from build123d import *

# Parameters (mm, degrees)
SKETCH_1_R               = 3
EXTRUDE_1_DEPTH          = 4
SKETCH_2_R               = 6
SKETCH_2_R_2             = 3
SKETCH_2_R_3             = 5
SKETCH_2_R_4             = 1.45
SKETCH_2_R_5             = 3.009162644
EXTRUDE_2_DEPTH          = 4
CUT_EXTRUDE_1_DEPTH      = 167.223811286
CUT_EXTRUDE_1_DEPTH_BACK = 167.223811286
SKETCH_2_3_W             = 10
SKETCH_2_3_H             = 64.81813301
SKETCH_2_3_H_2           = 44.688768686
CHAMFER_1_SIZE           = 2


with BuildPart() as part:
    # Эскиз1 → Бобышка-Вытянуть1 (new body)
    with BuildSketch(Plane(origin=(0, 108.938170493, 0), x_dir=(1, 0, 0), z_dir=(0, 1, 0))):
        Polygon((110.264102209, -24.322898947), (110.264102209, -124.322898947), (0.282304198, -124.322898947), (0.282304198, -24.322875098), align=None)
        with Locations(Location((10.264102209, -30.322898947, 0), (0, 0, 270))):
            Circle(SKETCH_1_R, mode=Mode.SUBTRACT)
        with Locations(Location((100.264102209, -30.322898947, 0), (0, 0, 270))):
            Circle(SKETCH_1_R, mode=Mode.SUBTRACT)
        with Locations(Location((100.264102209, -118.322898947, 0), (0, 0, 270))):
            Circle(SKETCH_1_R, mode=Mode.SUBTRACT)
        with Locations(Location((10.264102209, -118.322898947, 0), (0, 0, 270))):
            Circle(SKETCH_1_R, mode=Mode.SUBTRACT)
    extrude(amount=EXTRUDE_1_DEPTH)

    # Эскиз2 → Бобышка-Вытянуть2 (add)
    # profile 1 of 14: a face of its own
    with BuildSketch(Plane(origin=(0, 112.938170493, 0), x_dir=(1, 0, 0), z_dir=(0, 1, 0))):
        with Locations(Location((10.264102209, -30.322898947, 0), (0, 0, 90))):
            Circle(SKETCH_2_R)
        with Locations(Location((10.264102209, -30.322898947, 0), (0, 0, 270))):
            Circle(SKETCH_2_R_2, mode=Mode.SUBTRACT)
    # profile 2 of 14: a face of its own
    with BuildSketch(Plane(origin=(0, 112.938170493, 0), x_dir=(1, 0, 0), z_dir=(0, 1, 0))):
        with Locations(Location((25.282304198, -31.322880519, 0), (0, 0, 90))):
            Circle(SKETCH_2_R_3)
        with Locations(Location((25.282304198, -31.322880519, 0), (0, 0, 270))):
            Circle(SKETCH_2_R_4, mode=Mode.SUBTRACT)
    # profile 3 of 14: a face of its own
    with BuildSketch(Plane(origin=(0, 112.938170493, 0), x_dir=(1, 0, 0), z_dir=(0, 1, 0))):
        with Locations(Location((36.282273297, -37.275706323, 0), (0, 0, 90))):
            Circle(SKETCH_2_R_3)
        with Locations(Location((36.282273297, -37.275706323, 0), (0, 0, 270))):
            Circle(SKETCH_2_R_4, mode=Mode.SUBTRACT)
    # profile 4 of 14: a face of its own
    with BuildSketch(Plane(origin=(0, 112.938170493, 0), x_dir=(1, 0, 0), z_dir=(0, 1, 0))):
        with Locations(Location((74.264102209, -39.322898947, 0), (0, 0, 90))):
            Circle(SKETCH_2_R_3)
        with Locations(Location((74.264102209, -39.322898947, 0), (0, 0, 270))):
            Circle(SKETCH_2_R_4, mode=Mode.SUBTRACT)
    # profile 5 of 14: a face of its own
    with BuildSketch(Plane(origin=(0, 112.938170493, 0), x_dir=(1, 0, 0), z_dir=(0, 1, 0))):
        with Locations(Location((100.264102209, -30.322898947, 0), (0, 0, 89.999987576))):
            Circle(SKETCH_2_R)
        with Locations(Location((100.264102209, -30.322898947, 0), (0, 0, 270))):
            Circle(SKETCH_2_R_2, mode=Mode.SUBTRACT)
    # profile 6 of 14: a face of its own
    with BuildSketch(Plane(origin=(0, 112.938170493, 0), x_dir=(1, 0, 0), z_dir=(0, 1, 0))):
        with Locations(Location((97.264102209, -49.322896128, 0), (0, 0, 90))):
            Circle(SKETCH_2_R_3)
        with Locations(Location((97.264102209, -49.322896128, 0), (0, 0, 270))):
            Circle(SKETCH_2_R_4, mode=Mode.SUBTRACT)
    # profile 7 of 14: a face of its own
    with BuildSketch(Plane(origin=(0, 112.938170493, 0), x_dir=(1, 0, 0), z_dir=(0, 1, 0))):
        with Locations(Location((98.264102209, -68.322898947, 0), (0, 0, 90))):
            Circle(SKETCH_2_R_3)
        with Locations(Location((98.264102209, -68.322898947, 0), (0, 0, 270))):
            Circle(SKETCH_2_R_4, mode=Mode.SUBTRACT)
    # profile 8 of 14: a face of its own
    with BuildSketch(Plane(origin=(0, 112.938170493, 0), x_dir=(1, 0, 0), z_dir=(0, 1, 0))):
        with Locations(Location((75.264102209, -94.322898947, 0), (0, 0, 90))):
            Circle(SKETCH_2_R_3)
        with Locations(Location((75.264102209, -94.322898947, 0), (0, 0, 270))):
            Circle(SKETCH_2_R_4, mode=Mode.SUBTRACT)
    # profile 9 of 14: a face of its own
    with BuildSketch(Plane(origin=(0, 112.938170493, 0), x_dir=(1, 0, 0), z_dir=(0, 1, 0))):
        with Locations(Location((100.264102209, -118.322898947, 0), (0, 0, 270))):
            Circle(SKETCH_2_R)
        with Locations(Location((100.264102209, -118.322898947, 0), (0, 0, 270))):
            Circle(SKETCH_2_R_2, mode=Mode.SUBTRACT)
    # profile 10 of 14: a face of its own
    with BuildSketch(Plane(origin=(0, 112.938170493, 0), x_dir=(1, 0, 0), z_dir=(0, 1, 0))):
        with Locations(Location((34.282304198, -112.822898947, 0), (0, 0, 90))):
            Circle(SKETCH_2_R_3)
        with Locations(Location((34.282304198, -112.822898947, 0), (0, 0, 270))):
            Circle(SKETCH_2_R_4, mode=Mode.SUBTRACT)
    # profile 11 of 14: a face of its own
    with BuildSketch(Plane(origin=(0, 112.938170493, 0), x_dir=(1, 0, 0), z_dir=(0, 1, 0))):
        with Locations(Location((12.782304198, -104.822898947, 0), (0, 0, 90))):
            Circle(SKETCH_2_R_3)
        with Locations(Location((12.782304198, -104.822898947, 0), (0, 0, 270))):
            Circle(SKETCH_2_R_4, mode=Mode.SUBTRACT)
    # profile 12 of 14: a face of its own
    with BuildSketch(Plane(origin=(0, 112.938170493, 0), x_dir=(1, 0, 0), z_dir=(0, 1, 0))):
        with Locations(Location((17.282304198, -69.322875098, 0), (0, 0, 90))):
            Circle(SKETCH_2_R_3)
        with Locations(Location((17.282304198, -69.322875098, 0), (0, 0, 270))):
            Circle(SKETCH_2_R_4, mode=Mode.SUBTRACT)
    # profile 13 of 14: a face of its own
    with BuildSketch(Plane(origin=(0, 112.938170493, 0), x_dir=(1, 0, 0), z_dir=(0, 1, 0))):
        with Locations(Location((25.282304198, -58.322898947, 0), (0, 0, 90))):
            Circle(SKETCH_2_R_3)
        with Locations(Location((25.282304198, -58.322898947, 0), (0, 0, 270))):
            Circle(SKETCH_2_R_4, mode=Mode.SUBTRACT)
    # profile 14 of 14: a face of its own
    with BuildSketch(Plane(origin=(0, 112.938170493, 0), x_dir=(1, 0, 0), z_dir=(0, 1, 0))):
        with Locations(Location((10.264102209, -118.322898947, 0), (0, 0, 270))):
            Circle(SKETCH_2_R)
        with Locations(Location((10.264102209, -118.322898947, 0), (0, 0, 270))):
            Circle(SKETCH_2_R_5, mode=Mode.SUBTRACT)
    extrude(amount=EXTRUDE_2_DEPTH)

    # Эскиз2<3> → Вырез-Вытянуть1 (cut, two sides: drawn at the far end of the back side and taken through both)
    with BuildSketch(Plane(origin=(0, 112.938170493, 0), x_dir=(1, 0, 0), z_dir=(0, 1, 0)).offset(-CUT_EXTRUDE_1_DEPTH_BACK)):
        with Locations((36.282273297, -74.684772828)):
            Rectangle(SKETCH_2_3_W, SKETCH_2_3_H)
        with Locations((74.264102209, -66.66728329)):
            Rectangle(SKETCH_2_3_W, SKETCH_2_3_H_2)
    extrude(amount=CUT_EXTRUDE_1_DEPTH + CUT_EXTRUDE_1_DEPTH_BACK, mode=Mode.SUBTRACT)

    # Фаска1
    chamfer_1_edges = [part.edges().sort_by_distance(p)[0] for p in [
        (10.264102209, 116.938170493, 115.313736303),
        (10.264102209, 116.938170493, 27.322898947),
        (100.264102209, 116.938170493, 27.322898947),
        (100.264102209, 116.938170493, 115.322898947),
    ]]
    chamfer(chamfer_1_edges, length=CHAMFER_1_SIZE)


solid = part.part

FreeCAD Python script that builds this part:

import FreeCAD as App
import Part
import Sketcher

V = App.Vector
Q = App.Units.Quantity


def edges_at(feature, points):
    """Names of the edges that pass closest to the given points."""
    edges = feature.Shape.Edges
    near = lambda p: min(range(len(edges)), key=lambda i: edges[i].distToShape(Part.Vertex(*p))[0])
    return sorted({f"Edge{near(p) + 1}" for p in points})


def add_polygon(sketch, points):
    """Adds a closed chain of lines whose ends are joined by coincident constraints."""
    first, n = sketch.GeometryCount, len(points)
    for a, b in zip(points, points[1:] + points[:1]):
        sketch.addGeometry(Part.LineSegment(App.Vector(*a, 0), App.Vector(*b, 0)), False)
    for i in range(n):
        sketch.addConstraint(Sketcher.Constraint("Coincident", first + i, 2, first + (i + 1) % n, 1))

doc = App.newDocument("Part")
params = doc.addObject("Spreadsheet::Sheet", "Params")
for row, (alias, value) in enumerate([
    ("sketch1_diameter", "6 mm"),
    ("sketch1_height", "100 mm"),
    ("pad1_length", "4 mm"),
    ("sketch2_diameter", "12 mm"),
    ("sketch2_diameter2", "6 mm"),
    ("sketch2_diameter3", "10 mm"),
    ("sketch2_diameter4", "2.9 mm"),
    ("pad2_length", "4 mm"),
    ("sketch3_width", "10 mm"),
    ("chamfer_size", "2 mm"),
], start=1):
    params.set(f"A{row}", alias)
    params.set(f"B{row}", "=" + value)
    params.setAlias(f"B{row}", alias)

body = doc.addObject("PartDesign::Body", "Body")

sketch1 = doc.addObject("Sketcher::SketchObject", "Sketch")
body.addObject(sketch1)
sketch1.AttachmentSupport = (doc.XZ_Plane, [""])
sketch1.MapMode = "FlatFace"
sketch1.AttachmentOffset = App.Placement(V(0, 0, -108.93817), App.Rotation())
add_polygon(sketch1, [(110.3, 124.3), (110.3, 24.3), (0.3, 24.3), (0.3, 124.3)])
sketch1.addGeometry(Part.Circle(V(100.3, 118.3, 0), V(0, 0, 1), 3), False)
sketch1.addGeometry(Part.Circle(V(10.3, 118.3, 0), V(0, 0, 1), 3), False)
sketch1.addGeometry(Part.Circle(V(100.3, 30.3, 0), V(0, 0, 1), 3), False)
sketch1.addGeometry(Part.Circle(V(10.3, 30.3, 0), V(0, 0, 1), 3), False)
sketch1.addConstraint(Sketcher.Constraint("Vertical", 0))
sketch1.addConstraint(Sketcher.Constraint("Vertical", 2))
sketch1.addConstraint(Sketcher.Constraint("Horizontal", 3))
sketch1.addConstraint(Sketcher.Constraint("Equal", 4, 5))
sketch1.addConstraint(Sketcher.Constraint("Equal", 5, 6))
sketch1.addConstraint(Sketcher.Constraint("Equal", 6, 7))
sketch1.addConstraint(Sketcher.Constraint("Horizontal", 4, 3, 5, 3))
sketch1.addConstraint(Sketcher.Constraint("Horizontal", 6, 3, 7, 3))
sketch1.addConstraint(Sketcher.Constraint("Vertical", 4, 3, 6, 3))
sketch1.addConstraint(Sketcher.Constraint("Vertical", 5, 3, 7, 3))
sketch1.addConstraint(Sketcher.Constraint("Diameter", 4, Q("6 mm")))
sketch1.addConstraint(Sketcher.Constraint("DistanceY", 0, 2, 0, 1, Q("100 mm")))
sketch1.addConstraint(Sketcher.Constraint("Angle", 1, Q("-179.999988 deg")))
sketch1.addConstraint(Sketcher.Constraint("DistanceX", 5, 3, 4, 3, Q("90 mm")))
sketch1.addConstraint(Sketcher.Constraint("DistanceY", 6, 3, 4, 3, Q("88 mm")))
sketch1.addConstraint(Sketcher.Constraint("DistanceX", 6, 3, 0, 2, Q("10 mm")))
sketch1.addConstraint(Sketcher.Constraint("DistanceY", 0, 2, 6, 3, Q("6 mm")))
sketch1.addConstraint(Sketcher.Constraint("DistanceX", 3, 1, 3, 2, Q("109.981798 mm")))
sketch1.addConstraint(Sketcher.Constraint("DistanceY", -1, 1, 4, 3, Q("118.322899 mm")))
sketch1.addConstraint(Sketcher.Constraint("DistanceX", -1, 1, 4, 3, Q("100.264102 mm")))
sketch1.setExpression("Constraints[14]", "Params.sketch1_diameter")
sketch1.setExpression("Constraints[15]", "Params.sketch1_height")
pad1 = doc.addObject("PartDesign::Pad", "Pad")
body.addObject(pad1)
pad1.Profile = sketch1
pad1.setExpression("Length", "Params.pad1_length")
pad1.Reversed = True

sketch2 = doc.addObject("Sketcher::SketchObject", "Sketch001")
body.addObject(sketch2)
sketch2.AttachmentSupport = (doc.XZ_Plane, [""])
sketch2.MapMode = "FlatFace"
sketch2.AttachmentOffset = App.Placement(V(0, 0, -112.93817), App.Rotation())
sketch2.addGeometry(Part.Circle(V(10.3, 30.3, 0), V(0, 0, 1), 6), False)
sketch2.addGeometry(Part.Circle(V(10.3, 30.3, 0), V(0, 0, 1), 3), False)
sketch2.addGeometry(Part.Circle(V(25.3, 31.3, 0), V(0, 0, 1), 5), False)
sketch2.addGeometry(Part.Circle(V(25.3, 31.3, 0), V(0, 0, 1), 1.4), False)
sketch2.addGeometry(Part.Circle(V(36.3, 37.3, 0), V(0, 0, 1), 5), False)
sketch2.addGeometry(Part.Circle(V(36.3, 37.3, 0), V(0, 0, 1), 1.4), False)
sketch2.addGeometry(Part.Circle(V(74.3, 39.3, 0), V(0, 0, 1), 5), False)
sketch2.addGeometry(Part.Circle(V(74.3, 39.3, 0), V(0, 0, 1), 1.4), False)
sketch2.addGeometry(Part.Circle(V(100.3, 30.3, 0), V(0, 0, 1), 6), False)
sketch2.addGeometry(Part.Circle(V(100.3, 30.3, 0), V(0, 0, 1), 3), False)
sketch2.addGeometry(Part.Circle(V(97.3, 49.3, 0), V(0, 0, 1), 5), False)
sketch2.addGeometry(Part.Circle(V(97.3, 49.3, 0), V(0, 0, 1), 1.4), False)
sketch2.addGeometry(Part.Circle(V(98.3, 68.3, 0), V(0, 0, 1), 5), False)
sketch2.addGeometry(Part.Circle(V(98.3, 68.3, 0), V(0, 0, 1), 1.4), False)
sketch2.addGeometry(Part.Circle(V(75.3, 94.3, 0), V(0, 0, 1), 5), False)
sketch2.addGeometry(Part.Circle(V(75.3, 94.3, 0), V(0, 0, 1), 1.4), False)
sketch2.addGeometry(Part.Circle(V(100.3, 118.3, 0), V(0, 0, 1), 6), False)
sketch2.addGeometry(Part.Circle(V(100.3, 118.3, 0), V(0, 0, 1), 3), False)
sketch2.addGeometry(Part.Circle(V(34.3, 112.8, 0), V(0, 0, 1), 5), False)
sketch2.addGeometry(Part.Circle(V(34.3, 112.8, 0), V(0, 0, 1), 1.4), False)
sketch2.addGeometry(Part.Circle(V(12.8, 104.8, 0), V(0, 0, 1), 5), False)
sketch2.addGeometry(Part.Circle(V(12.8, 104.8, 0), V(0, 0, 1), 1.4), False)
sketch2.addGeometry(Part.Circle(V(17.3, 69.3, 0), V(0, 0, 1), 5), False)
sketch2.addGeometry(Part.Circle(V(17.3, 69.3, 0), V(0, 0, 1), 1.4), False)
sketch2.addGeometry(Part.Circle(V(25.3, 58.3, 0), V(0, 0, 1), 5), False)
sketch2.addGeometry(Part.Circle(V(25.3, 58.3, 0), V(0, 0, 1), 1.4), False)
sketch2.addGeometry(Part.Circle(V(10.3, 118.3, 0), V(0, 0, 1), 6), False)
sketch2.addGeometry(Part.Circle(V(10.3, 118.3, 0), V(0, 0, 1), 3), False)
sketch2.addConstraint(Sketcher.Constraint("Coincident", 1, 3, 0, 3))
sketch2.addConstraint(Sketcher.Constraint("Coincident", 3, 3, 2, 3))
sketch2.addConstraint(Sketcher.Constraint("Coincident", 5, 3, 4, 3))
sketch2.addConstraint(Sketcher.Constraint("Coincident", 7, 3, 6, 3))
sketch2.addConstraint(Sketcher.Constraint("Coincident", 9, 3, 8, 3))
sketch2.addConstraint(Sketcher.Constraint("Coincident", 11, 3, 10, 3))
sketch2.addConstraint(Sketcher.Constraint("Coincident", 13, 3, 12, 3))
sketch2.addConstraint(Sketcher.Constraint("Coincident", 15, 3, 14, 3))
sketch2.addConstraint(Sketcher.Constraint("Coincident", 17, 3, 16, 3))
sketch2.addConstraint(Sketcher.Constraint("Coincident", 19, 3, 18, 3))
sketch2.addConstraint(Sketcher.Constraint("Coincident", 21, 3, 20, 3))
sketch2.addConstraint(Sketcher.Constraint("Coincident", 23, 3, 22, 3))
sketch2.addConstraint(Sketcher.Constraint("Coincident", 25, 3, 24, 3))
sketch2.addConstraint(Sketcher.Constraint("Coincident", 27, 3, 26, 3))
sketch2.addConstraint(Sketcher.Constraint("Equal", 2, 4))
sketch2.addConstraint(Sketcher.Constraint("Equal", 3, 5))
sketch2.addConstraint(Sketcher.Constraint("Equal", 4, 6))
sketch2.addConstraint(Sketcher.Constraint("Equal", 5, 7))
sketch2.addConstraint(Sketcher.Constraint("Equal", 0, 8))
sketch2.addConstraint(Sketcher.Constraint("Equal", 1, 9))
sketch2.addConstraint(Sketcher.Constraint("Equal", 6, 10))
sketch2.addConstraint(Sketcher.Constraint("Equal", 7, 11))
sketch2.addConstraint(Sketcher.Constraint("Equal", 10, 12))
sketch2.addConstraint(Sketcher.Constraint("Equal", 11, 13))
sketch2.addConstraint(Sketcher.Constraint("Equal", 12, 14))
sketch2.addConstraint(Sketcher.Constraint("Equal", 13, 15))
sketch2.addConstraint(Sketcher.Constraint("Equal", 8, 16))
sketch2.addConstraint(Sketcher.Constraint("Equal", 9, 17))
sketch2.addConstraint(Sketcher.Constraint("Equal", 14, 18))
sketch2.addConstraint(Sketcher.Constraint("Equal", 15, 19))
sketch2.addConstraint(Sketcher.Constraint("Equal", 18, 20))
sketch2.addConstraint(Sketcher.Constraint("Equal", 19, 21))
sketch2.addConstraint(Sketcher.Constraint("Equal", 20, 22))
sketch2.addConstraint(Sketcher.Constraint("Equal", 21, 23))
sketch2.addConstraint(Sketcher.Constraint("Equal", 22, 24))
sketch2.addConstraint(Sketcher.Constraint("Equal", 23, 25))
sketch2.addConstraint(Sketcher.Constraint("Equal", 16, 26))
sketch2.addConstraint(Sketcher.Constraint("Horizontal", 1, 3, 8, 3))
sketch2.addConstraint(Sketcher.Constraint("Horizontal", 17, 3, 26, 3))
sketch2.addConstraint(Sketcher.Constraint("Vertical", 9, 3, 16, 3))
sketch2.addConstraint(Sketcher.Constraint("Vertical", 3, 3, 24, 3))
sketch2.addConstraint(Sketcher.Constraint("Vertical", 1, 3, 26, 3))
sketch2.addConstraint(Sketcher.Constraint("Diameter", 0, Q("12 mm")))
sketch2.addConstraint(Sketcher.Constraint("Diameter", 1, Q("6 mm")))
sketch2.addConstraint(Sketcher.Constraint("Diameter", 2, Q("10 mm")))
sketch2.addConstraint(Sketcher.Constraint("Diameter", 3, Q("2.9 mm")))
sketch2.addConstraint(Sketcher.Constraint("DistanceX", 0, 3, 6, 3, Q("64 mm")))
sketch2.addConstraint(Sketcher.Constraint("DistanceY", 0, 3, 6, 3, Q("9 mm")))
sketch2.addConstraint(Sketcher.Constraint("DistanceX", 6, 3, 8, 3, Q("26 mm")))
sketch2.addConstraint(Sketcher.Constraint("DistanceX", 10, 3, 8, 3, Q("3 mm")))
sketch2.addConstraint(Sketcher.Constraint("DistanceX", 10, 3, 12, 3, Q("1 mm")))
sketch2.addConstraint(Sketcher.Constraint("DistanceY", 6, 3, 12, 3, Q("29 mm")))
sketch2.addConstraint(Sketcher.Constraint("DistanceX", 14, 3, 12, 3, Q("23 mm")))
sketch2.addConstraint(Sketcher.Constraint("DistanceY", 12, 3, 14, 3, Q("26 mm")))
sketch2.addConstraint(Sketcher.Constraint("DistanceY", 14, 3, 16, 3, Q("24 mm")))
sketch2.addConstraint(Sketcher.Constraint("DistanceY", 20, 3, 18, 3, Q("8 mm")))
sketch2.addConstraint(Sketcher.Constraint("DistanceX", 22, 3, 2, 3, Q("8 mm")))
sketch2.addConstraint(Sketcher.Constraint("DistanceY", 14, 3, 18, 3, Q("18.5 mm")))
sketch2.addConstraint(Sketcher.Constraint("DistanceX", 20, 3, 18, 3, Q("21.5 mm")))
sketch2.addConstraint(Sketcher.Constraint("DistanceX", 20, 3, 22, 3, Q("4.5 mm")))
sketch2.addConstraint(Sketcher.Constraint("Diameter", 27, Q("6.018325 mm")))
sketch2.addConstraint(Sketcher.Constraint("DistanceY", -1, 1, 0, 3, Q("30.322899 mm")))
sketch2.addConstraint(Sketcher.Constraint("DistanceY", -1, 1, 24, 3, Q("58.322899 mm")))
sketch2.addConstraint(Sketcher.Constraint("DistanceX", 0, 3, 2, 3, Q("15.018202 mm")))
sketch2.addConstraint(Sketcher.Constraint("DistanceY", -1, 1, 2, 3, Q("31.322881 mm")))
sketch2.addConstraint(Sketcher.Constraint("DistanceX", 2, 3, 4, 3, Q("10.999969 mm")))
sketch2.addConstraint(Sketcher.Constraint("DistanceY", 4, 3, 10, 3, Q("12.04719 mm")))
sketch2.addConstraint(Sketcher.Constraint("DistanceY", 4, 3, 22, 3, Q("32.047169 mm")))
sketch2.addConstraint(Sketcher.Constraint("DistanceX", -1, 1, 0, 3, Q("10.264102 mm")))
sketch2.addConstraint(Sketcher.Constraint("DistanceY", -1, 1, 4, 3, Q("37.275706 mm")))
sketch2.setExpression("Constraints[42]", "Params.sketch2_diameter")
sketch2.setExpression("Constraints[43]", "Params.sketch2_diameter2")
sketch2.setExpression("Constraints[44]", "Params.sketch2_diameter3")
sketch2.setExpression("Constraints[45]", "Params.sketch2_diameter4")
pad2 = doc.addObject("PartDesign::Pad", "Pad001")
body.addObject(pad2)
pad2.Profile = sketch2
pad2.setExpression("Length", "Params.pad2_length")
pad2.Reversed = True

sketch3 = doc.addObject("Sketcher::SketchObject", "Sketch002")
body.addObject(sketch3)
sketch3.AttachmentSupport = (doc.XZ_Plane, [""])
sketch3.MapMode = "FlatFace"
sketch3.AttachmentOffset = App.Placement(V(0, 0, -112.93817), App.Rotation())
add_polygon(sketch3, [(31, 42), (31, 107), (41, 107), (41, 42)])
add_polygon(sketch3, [(69, 44), (69, 89), (79, 89), (79, 44)])
sketch3.addConstraint(Sketcher.Constraint("Vertical", 0))
sketch3.addConstraint(Sketcher.Constraint("Horizontal", 1))
sketch3.addConstraint(Sketcher.Constraint("Vertical", 2))
sketch3.addConstraint(Sketcher.Constraint("Horizontal", 3))
sketch3.addConstraint(Sketcher.Constraint("Vertical", 4))
sketch3.addConstraint(Sketcher.Constraint("Horizontal", 5))
sketch3.addConstraint(Sketcher.Constraint("Vertical", 6))
sketch3.addConstraint(Sketcher.Constraint("Horizontal", 7))
sketch3.addConstraint(Sketcher.Constraint("Equal", 3, 5))
sketch3.addConstraint(Sketcher.Constraint("DistanceX", 1, 1, 1, 2, Q("10 mm")))
sketch3.addConstraint(Sketcher.Constraint("DistanceY", 4, 1, 4, 2, Q("44.688769 mm")))
sketch3.addConstraint(Sketcher.Constraint("DistanceY", -1, 1, 6, 2, Q("44.322899 mm")))
sketch3.addConstraint(Sketcher.Constraint("DistanceY", 0, 1, 0, 2, Q("64.818133 mm")))
sketch3.addConstraint(Sketcher.Constraint("DistanceY", -1, 1, 0, 2, Q("107.093839 mm")))
sketch3.addConstraint(Sketcher.Constraint("DistanceX", 1, 2, 4, 2, Q("27.981829 mm")))
sketch3.addConstraint(Sketcher.Constraint("DistanceX", -1, 1, 0, 2, Q("31.282273 mm")))
sketch3.setExpression("Constraints[17]", "Params.sketch3_width")
pocket1 = doc.addObject("PartDesign::Pocket", "Pocket")
body.addObject(pocket1)
pocket1.Profile = sketch3
pocket1.Type = "ThroughAll"
pocket1.Midplane = True
doc.recompute()

chamfer = doc.addObject("PartDesign::Chamfer", "Chamfer")
body.addObject(chamfer)
chamfer.Base = (pocket1, edges_at(pocket1, [
    (10.264, 116.938, 115.314),
    (10.264, 116.938, 27.323),
    (100.264, 116.938, 27.323),
    (100.264, 116.938, 115.323),
]))
chamfer.setExpression("Size", "Params.chamfer_size")

doc.recompute()
